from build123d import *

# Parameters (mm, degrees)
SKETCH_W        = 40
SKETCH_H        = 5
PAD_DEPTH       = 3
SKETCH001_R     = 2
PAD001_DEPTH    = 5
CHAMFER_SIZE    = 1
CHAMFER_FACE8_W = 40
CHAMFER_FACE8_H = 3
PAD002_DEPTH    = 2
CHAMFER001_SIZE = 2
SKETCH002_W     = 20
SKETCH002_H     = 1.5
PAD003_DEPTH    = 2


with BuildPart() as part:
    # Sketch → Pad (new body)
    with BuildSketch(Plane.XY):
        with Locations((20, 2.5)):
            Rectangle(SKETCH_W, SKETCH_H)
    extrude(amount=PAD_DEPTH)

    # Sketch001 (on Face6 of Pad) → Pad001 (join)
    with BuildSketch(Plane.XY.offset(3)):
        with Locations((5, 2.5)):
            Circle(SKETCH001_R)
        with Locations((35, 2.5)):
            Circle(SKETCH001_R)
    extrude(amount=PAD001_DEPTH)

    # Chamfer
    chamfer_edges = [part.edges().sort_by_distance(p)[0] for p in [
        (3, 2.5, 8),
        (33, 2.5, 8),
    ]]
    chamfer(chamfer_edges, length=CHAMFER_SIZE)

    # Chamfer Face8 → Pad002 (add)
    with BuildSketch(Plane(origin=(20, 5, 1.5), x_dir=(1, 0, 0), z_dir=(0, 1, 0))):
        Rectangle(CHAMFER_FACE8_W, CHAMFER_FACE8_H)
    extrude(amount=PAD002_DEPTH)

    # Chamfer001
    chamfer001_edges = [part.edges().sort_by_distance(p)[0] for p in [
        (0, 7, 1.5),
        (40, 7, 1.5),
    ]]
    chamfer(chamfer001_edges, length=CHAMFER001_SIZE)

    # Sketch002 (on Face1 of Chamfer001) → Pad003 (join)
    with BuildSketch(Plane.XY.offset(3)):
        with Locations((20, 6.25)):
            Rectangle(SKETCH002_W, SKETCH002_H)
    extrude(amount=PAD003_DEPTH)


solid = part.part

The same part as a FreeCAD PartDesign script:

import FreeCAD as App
import Part
import Sketcher
from FreeCAD import Vector
Q = App.Units.Quantity


def edges_at(feature, points):
    """Names of the edges that pass closest to the given points."""
    edges = feature.Shape.Edges
    near = lambda p: min(range(len(edges)), key=lambda i: edges[i].distToShape(Part.Vertex(*p))[0])
    return sorted({f"Edge{near(p) + 1}" for p in points})


def add_polygon(sketch, points):
    """Adds a closed chain of lines whose ends are joined by coincident constraints."""
    first, n = sketch.GeometryCount, len(points)
    for a, b in zip(points, points[1:] + points[:1]):
        sketch.addGeometry(Part.LineSegment(App.Vector(*a, 0), App.Vector(*b, 0)), False)
    for i in range(n):
        sketch.addConstraint(Sketcher.Constraint("Coincident", first + i, 2, first + (i + 1) % n, 1))

doc = App.newDocument("Part")
params = doc.addObject("Spreadsheet::Sheet", "Params")
for row, (alias, value) in enumerate([
    ("sketch1_width", "40 mm"),
    ("sketch1_height", "5 mm"),
    ("pad1_length", "3 mm"),
    ("sketch2_diameter", "4 mm"),
    ("pad2_length", "5 mm"),
    ("chamfer_size", "1 mm"),
    ("sketch3_width", "40 mm"),
    ("sketch3_height", "3 mm"),
    ("pad3_length", "2 mm"),
    ("chamfer2_size", "2 mm"),
    ("sketch4_width", "20 mm"),
    ("sketch4_height", "1.5 mm"),
    ("pad4_length", "2 mm"),
], start=1):
    params.set(f"A{row}", alias)
    params.set(f"B{row}", "=" + value)
    params.setAlias(f"B{row}", alias)

body = doc.addObject("PartDesign::Body", "Body")

sketch1 = body.newObject("Sketcher::SketchObject", "Sketch")
sketch1.AttachmentSupport = (doc.getObject("XY_Plane"), [""])
sketch1.MapMode = "FlatFace"
add_polygon(sketch1, [(0, 5), (0, 0), (40, 0), (40, 5)])
sketch1.addConstraint([
    Sketcher.Constraint("Vertical", 0),
    Sketcher.Constraint("Horizontal", 1),
    Sketcher.Constraint("Vertical", 2),
    Sketcher.Constraint("Horizontal", 3),
    Sketcher.Constraint("Coincident", 0, 2, -1, 1),
    Sketcher.Constraint("DistanceX", 1, 1, 1, 2, Q("40 mm")),
    Sketcher.Constraint("DistanceY", 0, 2, 0, 1, Q("5 mm")),
])
sketch1.setExpression("Constraints[9]", "Params.sketch1_width")
sketch1.setExpression("Constraints[10]", "Params.sketch1_height")
pad1 = body.newObject("PartDesign::Pad", "Pad")
pad1.Profile = sketch1
pad1.setExpression("Length", "Params.pad1_length")

sketch2 = body.newObject("Sketcher::SketchObject", "Sketch001")
sketch2.AttachmentSupport = (doc.getObject("XY_Plane"), [""])
sketch2.MapMode = "FlatFace"
sketch2.AttachmentOffset = App.Placement(Vector(0, 0, 3), App.Rotation())
sketch2.addGeometry([
    Part.Circle(Vector(5, 2.5, 0), Vector(0, 0, 1), 2),
    Part.Circle(Vector(35, 2.5, 0), Vector(0, 0, 1), 2),
], False)
sketch2.addConstraint([
    Sketcher.Constraint("Equal", 0, 1),
    Sketcher.Constraint("Horizontal", 0, 3, 1, 3),
    Sketcher.Constraint("Diameter", 0, Q("4 mm")),
    Sketcher.Constraint("DistanceX", -1, 1, 0, 3, Q("5 mm")),
    Sketcher.Constraint("DistanceX", -1, 1, 1, 3, Q("35 mm")),
    Sketcher.Constraint("DistanceY", -1, 1, 0, 3, Q("2.5 mm")),
])
sketch2.setExpression("Constraints[2]", "Params.sketch2_diameter")
pad2 = body.newObject("PartDesign::Pad", "Pad001")
pad2.Profile = sketch2
pad2.setExpression("Length", "Params.pad2_length")
doc.recompute()

chamfer = body.newObject("PartDesign::Chamfer", "Chamfer")
chamfer.Base = (pad2, edges_at(pad2, [(3, 2.5, 8), (33, 2.5, 8)]))
chamfer.setExpression("Size", "Params.chamfer_size")

sketch3 = body.newObject("Sketcher::SketchObject", "Sketch002")
sketch3.AttachmentSupport = (doc.getObject("XZ_Plane"), [""])
sketch3.MapMode = "FlatFace"
sketch3.AttachmentOffset = App.Placement(Vector(0, 0, -5), App.Rotation())
add_polygon(sketch3, [(0, 0), (0, 3), (40, 3), (40, 0)])
sketch3.addConstraint([
    Sketcher.Constraint("Vertical", 0),
    Sketcher.Constraint("Horizontal", 1),
    Sketcher.Constraint("Vertical", 2),
    Sketcher.Constraint("Horizontal", 3),
    Sketcher.Constraint("Coincident", 3, 2, -1, 1),
    Sketcher.Constraint("DistanceX", 1, 1, 1, 2, Q("40 mm")),
    Sketcher.Constraint("DistanceY", 0, 1, 0, 2, Q("3 mm")),
])
sketch3.setExpression("Constraints[9]", "Params.sketch3_width")
sketch3.setExpression("Constraints[10]", "Params.sketch3_height")
pad3 = body.newObject("PartDesign::Pad", "Pad002")
pad3.Profile = sketch3
pad3.setExpression("Length", "Params.pad3_length")
pad3.Reversed = True
doc.recompute()

chamfer2 = body.newObject("PartDesign::Chamfer", "Chamfer001")
chamfer2.Base = (pad3, edges_at(pad3, [(0, 7, 1.5), (40, 7, 1.5)]))
chamfer2.setExpression("Size", "Params.chamfer2_size")

sketch4 = body.newObject("Sketcher::SketchObject", "Sketch003")
sketch4.AttachmentSupport = (doc.getObject("XY_Plane"), [""])
sketch4.MapMode = "FlatFace"
sketch4.AttachmentOffset = App.Placement(Vector(0, 0, 3), App.Rotation())
add_polygon(sketch4, [(10, 7), (10, 5.5), (30, 5.5), (30, 7)])
sketch4.addConstraint([
    Sketcher.Constraint("Vertical", 0),
    Sketcher.Constraint("Horizontal", 1),
    Sketcher.Constraint("Vertical", 2),
    Sketcher.Constraint("Horizontal", 3),
    Sketcher.Constraint("DistanceX", 1, 1, 1, 2, Q("20 mm")),
    Sketcher.Constraint("DistanceY", 0, 2, 0, 1, Q("1.5 mm")),
    Sketcher.Constraint("DistanceX", -1, 1, 0, 2, Q("10 mm")),
    Sketcher.Constraint("DistanceY", -1, 1, 2, 2, Q("7 mm")),
])
sketch4.setExpression("Constraints[8]", "Params.sketch4_width")
sketch4.setExpression("Constraints[9]", "Params.sketch4_height")
pad4 = body.newObject("PartDesign::Pad", "Pad003")
pad4.Profile = sketch4
pad4.setExpression("Length", "Params.pad4_length")

doc.recompute()
